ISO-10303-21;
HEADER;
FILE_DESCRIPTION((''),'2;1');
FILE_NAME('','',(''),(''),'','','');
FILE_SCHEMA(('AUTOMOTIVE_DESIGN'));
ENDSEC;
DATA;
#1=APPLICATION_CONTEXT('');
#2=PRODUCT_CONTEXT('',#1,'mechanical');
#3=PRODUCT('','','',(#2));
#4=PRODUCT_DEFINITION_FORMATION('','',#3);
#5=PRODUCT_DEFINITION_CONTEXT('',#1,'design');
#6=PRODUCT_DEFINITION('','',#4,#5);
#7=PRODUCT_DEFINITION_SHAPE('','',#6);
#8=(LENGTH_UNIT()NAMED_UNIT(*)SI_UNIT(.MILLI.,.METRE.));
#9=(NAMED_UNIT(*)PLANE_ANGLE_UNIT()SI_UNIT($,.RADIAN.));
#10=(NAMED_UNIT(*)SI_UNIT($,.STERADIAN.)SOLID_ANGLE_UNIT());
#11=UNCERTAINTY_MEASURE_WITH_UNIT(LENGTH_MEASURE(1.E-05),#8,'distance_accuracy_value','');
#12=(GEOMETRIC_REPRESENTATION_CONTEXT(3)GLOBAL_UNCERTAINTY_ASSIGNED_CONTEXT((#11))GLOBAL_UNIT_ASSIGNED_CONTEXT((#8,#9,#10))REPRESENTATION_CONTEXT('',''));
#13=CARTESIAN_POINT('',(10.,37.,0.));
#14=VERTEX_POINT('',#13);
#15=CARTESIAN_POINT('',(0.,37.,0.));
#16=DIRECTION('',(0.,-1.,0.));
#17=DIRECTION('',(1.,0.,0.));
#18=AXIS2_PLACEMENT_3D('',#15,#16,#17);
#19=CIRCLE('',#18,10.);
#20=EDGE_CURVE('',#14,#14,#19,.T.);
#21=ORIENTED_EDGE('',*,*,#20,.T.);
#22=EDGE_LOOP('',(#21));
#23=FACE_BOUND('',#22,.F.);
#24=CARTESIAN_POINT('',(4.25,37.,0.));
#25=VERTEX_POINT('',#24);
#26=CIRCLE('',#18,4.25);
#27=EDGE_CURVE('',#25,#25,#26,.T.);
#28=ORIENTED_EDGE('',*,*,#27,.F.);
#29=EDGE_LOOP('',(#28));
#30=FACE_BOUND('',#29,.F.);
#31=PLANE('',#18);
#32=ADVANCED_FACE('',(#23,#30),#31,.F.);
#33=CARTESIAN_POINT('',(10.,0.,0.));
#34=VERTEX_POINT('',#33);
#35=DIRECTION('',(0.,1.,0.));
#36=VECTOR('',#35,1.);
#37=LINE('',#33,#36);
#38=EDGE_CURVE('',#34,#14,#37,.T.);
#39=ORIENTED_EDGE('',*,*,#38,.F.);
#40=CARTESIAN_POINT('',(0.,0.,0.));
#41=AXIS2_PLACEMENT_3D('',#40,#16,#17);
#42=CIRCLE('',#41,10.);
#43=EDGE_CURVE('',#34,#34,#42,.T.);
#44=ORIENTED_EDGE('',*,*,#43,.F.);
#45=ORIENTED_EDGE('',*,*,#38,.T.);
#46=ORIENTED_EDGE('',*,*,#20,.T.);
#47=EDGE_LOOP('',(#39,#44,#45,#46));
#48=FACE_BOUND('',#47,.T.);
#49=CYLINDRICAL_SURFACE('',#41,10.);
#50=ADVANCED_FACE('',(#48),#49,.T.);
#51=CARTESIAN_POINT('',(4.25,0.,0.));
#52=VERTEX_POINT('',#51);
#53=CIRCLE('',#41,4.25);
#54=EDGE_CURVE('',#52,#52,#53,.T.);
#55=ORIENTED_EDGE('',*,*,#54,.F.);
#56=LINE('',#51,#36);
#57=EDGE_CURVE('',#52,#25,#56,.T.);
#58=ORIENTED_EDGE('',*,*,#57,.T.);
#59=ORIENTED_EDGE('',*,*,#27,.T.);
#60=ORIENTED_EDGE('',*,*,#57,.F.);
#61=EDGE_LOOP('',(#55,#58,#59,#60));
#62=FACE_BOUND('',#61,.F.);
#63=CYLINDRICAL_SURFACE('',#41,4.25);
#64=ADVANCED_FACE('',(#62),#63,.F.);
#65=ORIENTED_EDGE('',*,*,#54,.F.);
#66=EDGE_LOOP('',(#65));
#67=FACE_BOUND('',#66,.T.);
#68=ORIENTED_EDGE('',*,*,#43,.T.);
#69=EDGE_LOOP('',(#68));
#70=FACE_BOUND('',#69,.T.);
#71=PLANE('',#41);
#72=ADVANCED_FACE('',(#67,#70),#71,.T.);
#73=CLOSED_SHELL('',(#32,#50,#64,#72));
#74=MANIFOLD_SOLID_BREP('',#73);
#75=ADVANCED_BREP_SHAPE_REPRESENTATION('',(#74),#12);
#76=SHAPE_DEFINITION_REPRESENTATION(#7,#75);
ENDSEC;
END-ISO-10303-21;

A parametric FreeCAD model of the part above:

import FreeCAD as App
import Part
import Sketcher
from FreeCAD import Vector
Q = App.Units.Quantity

doc = App.newDocument("Part")
params = doc.addObject("Spreadsheet::Sheet", "Params")
for row, (alias, value) in enumerate([
    ("sketch1_diameter", "20 mm"),
    ("pad1_length", "37 mm"),
    ("sketch2_diameter", "8.5 mm"),
], start=1):
    params.set(f"A{row}", alias)
    params.set(f"B{row}", "=" + value)
    params.setAlias(f"B{row}", alias)

body = doc.addObject("PartDesign::Body", "Body")

sketch1 = body.newObject("Sketcher::SketchObject", "Sketch")
sketch1.AttachmentSupport = (doc.getObject("XZ_Plane"), [""])
sketch1.MapMode = "FlatFace"
sketch1.addGeometry(Part.Circle(Vector(0, 0, 0), Vector(0, 0, 1), 10), False)
sketch1.addConstraint([
    Sketcher.Constraint("Coincident", 0, 3, -1, 1),
    Sketcher.Constraint("Diameter", 0, Q("20 mm")),
])
sketch1.setExpression("Constraints[1]", "Params.sketch1_diameter")
pad1 = body.newObject("PartDesign::Pad", "Pad")
pad1.Profile = sketch1
pad1.setExpression("Length", "Params.pad1_length")
pad1.Reversed = True

sketch2 = body.newObject("Sketcher::SketchObject", "Sketch001")
sketch2.AttachmentSupport = (doc.getObject("XZ_Plane"), [""])
sketch2.MapMode = "FlatFace"
sketch2.addGeometry(Part.Circle(Vector(0, 0, 0), Vector(0, 0, 1), 4.25), False)
sketch2.addConstraint([
    Sketcher.Constraint("Coincident", 0, 3, -1, 1),
    Sketcher.Constraint("Diameter", 0, Q("8.5 mm")),
])
sketch2.setExpression("Constraints[1]", "Params.sketch2_diameter")
pocket1 = body.newObject("PartDesign::Pocket", "Pocket")
pocket1.Profile = sketch2
pocket1.Type = "ThroughAll"

doc.recompute()
